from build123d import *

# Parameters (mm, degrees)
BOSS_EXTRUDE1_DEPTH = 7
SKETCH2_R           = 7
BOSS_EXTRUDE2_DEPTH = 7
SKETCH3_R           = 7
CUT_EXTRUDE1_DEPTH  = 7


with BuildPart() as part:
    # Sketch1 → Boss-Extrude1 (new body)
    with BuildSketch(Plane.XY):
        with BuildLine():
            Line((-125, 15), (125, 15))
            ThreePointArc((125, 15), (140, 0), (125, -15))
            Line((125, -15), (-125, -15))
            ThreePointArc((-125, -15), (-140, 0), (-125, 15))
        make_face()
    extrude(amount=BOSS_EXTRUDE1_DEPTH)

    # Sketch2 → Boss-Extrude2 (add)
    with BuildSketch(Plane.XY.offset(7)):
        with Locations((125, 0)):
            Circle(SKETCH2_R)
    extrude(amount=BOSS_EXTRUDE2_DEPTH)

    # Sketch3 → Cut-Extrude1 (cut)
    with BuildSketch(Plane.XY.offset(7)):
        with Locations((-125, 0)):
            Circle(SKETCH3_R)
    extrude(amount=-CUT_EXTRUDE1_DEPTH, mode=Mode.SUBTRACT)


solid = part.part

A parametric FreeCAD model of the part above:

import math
import FreeCAD as App
import Part
import Sketcher

V = App.Vector

doc = App.newDocument("Part")
body = doc.addObject("PartDesign::Body", "Body")

# Sketch on XY plane
sketch1 = body.newObject("Sketcher::SketchObject", "Sketch")
sketch1.AttachmentSupport = (doc.getObject("XY_Plane"), [""])
sketch1.MapMode = "FlatFace"
sketch1.addGeometry([
    Part.LineSegment(V(125, 15, 0), V(-125, 15, 0)),
    Part.ArcOfCircle(Part.Circle(V(-125, 0, 0), V(0, 0, 1), 15), math.radians(90), math.radians(270)),
    Part.LineSegment(V(-125, -15, 0), V(125, -15, 0)),
    Part.ArcOfCircle(Part.Circle(V(125, 0, 0), V(0, 0, 1), 15), math.radians(-90), math.radians(90)),
], False)
sketch1.addConstraint([
    Sketcher.Constraint("Tangent", 0, 2, 1, 1),
    Sketcher.Constraint("Tangent", 1, 2, 2, 1),
    Sketcher.Constraint("Tangent", 2, 2, 3, 1),
    Sketcher.Constraint("Tangent", 3, 2, 0, 1),
    Sketcher.Constraint("Horizontal", 0),
    Sketcher.Constraint("Horizontal", 2),
    Sketcher.Constraint("Symmetric", 1, 3, 3, 3, -1, 1),
    Sketcher.Constraint("Radius", 1, 15.0),
    Sketcher.Constraint("DistanceX", 0, 2, 0, 1, 250.0),
])
pad1 = body.newObject("PartDesign::Pad", "Pad")
pad1.Profile = sketch1
pad1.Length = 7

# Sketch on XY plane
sketch2 = body.newObject("Sketcher::SketchObject", "Sketch001")
sketch2.AttachmentSupport = (doc.getObject("XY_Plane"), [""])
sketch2.MapMode = "FlatFace"
sketch2.AttachmentOffset = App.Placement(V(0, 0, 7), App.Rotation())
sketch2.addGeometry(Part.Circle(V(125, 0, 0), V(0, 0, 1), 7), False)
sketch2.addConstraint([
    Sketcher.Constraint("PointOnObject", 0, 3, -1),
    Sketcher.Constraint("Diameter", 0, 14.0),
    Sketcher.Constraint("DistanceX", -1, 1, 0, 3, 125.0),
])
pad2 = body.newObject("PartDesign::Pad", "Pad001")
pad2.Profile = sketch2
pad2.Length = 7

# Sketch on XY plane
sketch3 = body.newObject("Sketcher::SketchObject", "Sketch002")
sketch3.AttachmentSupport = (doc.getObject("XY_Plane"), [""])
sketch3.MapMode = "FlatFace"
sketch3.AttachmentOffset = App.Placement(V(0, 0, 7), App.Rotation())
sketch3.addGeometry(Part.Circle(V(-125, 0, 0), V(0, 0, 1), 7), False)
sketch3.addConstraint([
    Sketcher.Constraint("PointOnObject", 0, 3, -1),
    Sketcher.Constraint("Diameter", 0, 14.0),
    Sketcher.Constraint("DistanceX", 0, 3, -1, 1, 125.0),
])
pocket1 = body.newObject("PartDesign::Pocket", "Pocket")
pocket1.Profile = sketch3
pocket1.Length = 7

doc.recompute()
